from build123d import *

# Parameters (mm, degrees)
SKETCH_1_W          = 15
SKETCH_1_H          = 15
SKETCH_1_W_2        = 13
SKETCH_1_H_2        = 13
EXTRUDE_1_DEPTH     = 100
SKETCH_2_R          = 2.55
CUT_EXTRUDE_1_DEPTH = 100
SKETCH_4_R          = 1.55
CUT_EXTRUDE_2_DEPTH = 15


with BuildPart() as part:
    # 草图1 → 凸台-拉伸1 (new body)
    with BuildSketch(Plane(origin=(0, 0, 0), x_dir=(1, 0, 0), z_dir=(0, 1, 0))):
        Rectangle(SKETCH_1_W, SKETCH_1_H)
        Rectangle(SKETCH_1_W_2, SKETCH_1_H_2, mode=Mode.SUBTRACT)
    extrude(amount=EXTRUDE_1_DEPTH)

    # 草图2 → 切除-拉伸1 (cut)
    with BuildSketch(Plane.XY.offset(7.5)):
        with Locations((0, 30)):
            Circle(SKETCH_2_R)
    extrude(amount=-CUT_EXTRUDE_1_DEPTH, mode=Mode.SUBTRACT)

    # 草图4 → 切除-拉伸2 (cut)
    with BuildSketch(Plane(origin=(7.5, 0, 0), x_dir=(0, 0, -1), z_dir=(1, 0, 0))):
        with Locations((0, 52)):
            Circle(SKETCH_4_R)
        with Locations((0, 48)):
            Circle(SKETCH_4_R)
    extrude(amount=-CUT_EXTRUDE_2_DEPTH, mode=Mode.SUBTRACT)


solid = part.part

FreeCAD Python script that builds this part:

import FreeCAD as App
import Part
import Sketcher
from FreeCAD import Vector
Q = App.Units.Quantity


def add_polygon(sketch, points):
    """Adds a closed chain of lines whose ends are joined by coincident constraints."""
    first, n = sketch.GeometryCount, len(points)
    for a, b in zip(points, points[1:] + points[:1]):
        sketch.addGeometry(Part.LineSegment(App.Vector(*a, 0), App.Vector(*b, 0)), False)
    for i in range(n):
        sketch.addConstraint(Sketcher.Constraint("Coincident", first + i, 2, first + (i + 1) % n, 1))

doc = App.newDocument("Part")
params = doc.addObject("Spreadsheet::Sheet", "Params")
for row, (alias, value) in enumerate([
    ("sketch1_width", "15 mm"),
    ("sketch1_width2", "13 mm"),
    ("pad1_length", "100 mm"),
    ("sketch2_diameter", "5.1 mm"),
    ("pocket1_length", "100 mm"),
    ("sketch3_diameter", "3.1 mm"),
    ("pocket2_length", "15 mm"),
], start=1):
    params.set(f"A{row}", alias)
    params.set(f"B{row}", "=" + value)
    params.setAlias(f"B{row}", alias)

body = doc.addObject("PartDesign::Body", "Body")

sketch1 = doc.addObject("Sketcher::SketchObject", "Sketch")
body.addObject(sketch1)
sketch1.AttachmentSupport = (doc.XZ_Plane, [""])
sketch1.MapMode = "FlatFace"
add_polygon(sketch1, [(-7.5, -7.5), (-7.5, 7.5), (7.5, 7.5), (7.5, -7.5)])
add_polygon(sketch1, [(6.5, 6.5), (-6.5, 6.5), (-6.5, -6.5), (6.5, -6.5)])
sketch1.addConstraint([
    Sketcher.Constraint("Vertical", 0),
    Sketcher.Constraint("Horizontal", 1),
    Sketcher.Constraint("Vertical", 2),
    Sketcher.Constraint("Horizontal", 3),
    Sketcher.Constraint("Horizontal", 4),
    Sketcher.Constraint("Vertical", 5),
    Sketcher.Constraint("Horizontal", 6),
    Sketcher.Constraint("Vertical", 7),
    Sketcher.Constraint("Symmetric", 0, 2, 2, 2, -1, 1),
    Sketcher.Constraint("Symmetric", 4, 2, 6, 2, -1, 1),
    Sketcher.Constraint("Equal", 3, 0),
    Sketcher.Constraint("Equal", 6, 5),
    Sketcher.Constraint("DistanceX", 1, 1, 1, 2, Q("15 mm")),
    Sketcher.Constraint("DistanceX", 4, 2, 4, 1, Q("13 mm")),
])
sketch1.setExpression("Constraints[20]", "Params.sketch1_width")
sketch1.setExpression("Constraints[21]", "Params.sketch1_width2")
pad1 = doc.addObject("PartDesign::Pad", "Pad")
body.addObject(pad1)
pad1.Profile = sketch1
pad1.setExpression("Length", "Params.pad1_length")
pad1.Reversed = True

sketch2 = doc.addObject("Sketcher::SketchObject", "Sketch001")
body.addObject(sketch2)
sketch2.AttachmentSupport = (doc.XY_Plane, [""])
sketch2.MapMode = "FlatFace"
sketch2.AttachmentOffset = App.Placement(Vector(0, 0, 7.5), App.Rotation())
sketch2.addGeometry(Part.Circle(Vector(0, 30, 0), Vector(0, 0, 1), 2.55), False)
sketch2.addConstraint([
    Sketcher.Constraint("PointOnObject", 0, 3, -2),
    Sketcher.Constraint("Diameter", 0, Q("5.1 mm")),
    Sketcher.Constraint("DistanceY", -1, 1, 0, 3, Q("30 mm")),
])
sketch2.setExpression("Constraints[1]", "Params.sketch2_diameter")
pocket1 = doc.addObject("PartDesign::Pocket", "Pocket")
body.addObject(pocket1)
pocket1.Profile = sketch2
pocket1.setExpression("Length", "Params.pocket1_length")

sketch3 = doc.addObject("Sketcher::SketchObject", "Sketch002")
body.addObject(sketch3)
sketch3.AttachmentSupport = (doc.YZ_Plane, [""])
sketch3.MapMode = "FlatFace"
sketch3.AttachmentOffset = App.Placement(Vector(0, 0, 7.5), App.Rotation())
sketch3.addGeometry([
    Part.Circle(Vector(52, 0, 0), Vector(0, 0, 1), 1.55),
    Part.Circle(Vector(48, 0, 0), Vector(0, 0, 1), 1.55),
], False)
sketch3.addConstraint([
    Sketcher.Constraint("Equal", 0, 1),
    Sketcher.Constraint("PointOnObject", 0, 3, -1),
    Sketcher.Constraint("PointOnObject", 1, 3, -1),
    Sketcher.Constraint("Diameter", 0, Q("3.1 mm")),
    Sketcher.Constraint("DistanceX", -1, 1, 0, 3, Q("52 mm")),
    Sketcher.Constraint("DistanceX", -1, 1, 1, 3, Q("48 mm")),
])
sketch3.setExpression("Constraints[3]", "Params.sketch3_diameter")
pocket2 = doc.addObject("PartDesign::Pocket", "Pocket001")
body.addObject(pocket2)
pocket2.Profile = sketch3
pocket2.setExpression("Length", "Params.pocket2_length")

doc.recompute()
